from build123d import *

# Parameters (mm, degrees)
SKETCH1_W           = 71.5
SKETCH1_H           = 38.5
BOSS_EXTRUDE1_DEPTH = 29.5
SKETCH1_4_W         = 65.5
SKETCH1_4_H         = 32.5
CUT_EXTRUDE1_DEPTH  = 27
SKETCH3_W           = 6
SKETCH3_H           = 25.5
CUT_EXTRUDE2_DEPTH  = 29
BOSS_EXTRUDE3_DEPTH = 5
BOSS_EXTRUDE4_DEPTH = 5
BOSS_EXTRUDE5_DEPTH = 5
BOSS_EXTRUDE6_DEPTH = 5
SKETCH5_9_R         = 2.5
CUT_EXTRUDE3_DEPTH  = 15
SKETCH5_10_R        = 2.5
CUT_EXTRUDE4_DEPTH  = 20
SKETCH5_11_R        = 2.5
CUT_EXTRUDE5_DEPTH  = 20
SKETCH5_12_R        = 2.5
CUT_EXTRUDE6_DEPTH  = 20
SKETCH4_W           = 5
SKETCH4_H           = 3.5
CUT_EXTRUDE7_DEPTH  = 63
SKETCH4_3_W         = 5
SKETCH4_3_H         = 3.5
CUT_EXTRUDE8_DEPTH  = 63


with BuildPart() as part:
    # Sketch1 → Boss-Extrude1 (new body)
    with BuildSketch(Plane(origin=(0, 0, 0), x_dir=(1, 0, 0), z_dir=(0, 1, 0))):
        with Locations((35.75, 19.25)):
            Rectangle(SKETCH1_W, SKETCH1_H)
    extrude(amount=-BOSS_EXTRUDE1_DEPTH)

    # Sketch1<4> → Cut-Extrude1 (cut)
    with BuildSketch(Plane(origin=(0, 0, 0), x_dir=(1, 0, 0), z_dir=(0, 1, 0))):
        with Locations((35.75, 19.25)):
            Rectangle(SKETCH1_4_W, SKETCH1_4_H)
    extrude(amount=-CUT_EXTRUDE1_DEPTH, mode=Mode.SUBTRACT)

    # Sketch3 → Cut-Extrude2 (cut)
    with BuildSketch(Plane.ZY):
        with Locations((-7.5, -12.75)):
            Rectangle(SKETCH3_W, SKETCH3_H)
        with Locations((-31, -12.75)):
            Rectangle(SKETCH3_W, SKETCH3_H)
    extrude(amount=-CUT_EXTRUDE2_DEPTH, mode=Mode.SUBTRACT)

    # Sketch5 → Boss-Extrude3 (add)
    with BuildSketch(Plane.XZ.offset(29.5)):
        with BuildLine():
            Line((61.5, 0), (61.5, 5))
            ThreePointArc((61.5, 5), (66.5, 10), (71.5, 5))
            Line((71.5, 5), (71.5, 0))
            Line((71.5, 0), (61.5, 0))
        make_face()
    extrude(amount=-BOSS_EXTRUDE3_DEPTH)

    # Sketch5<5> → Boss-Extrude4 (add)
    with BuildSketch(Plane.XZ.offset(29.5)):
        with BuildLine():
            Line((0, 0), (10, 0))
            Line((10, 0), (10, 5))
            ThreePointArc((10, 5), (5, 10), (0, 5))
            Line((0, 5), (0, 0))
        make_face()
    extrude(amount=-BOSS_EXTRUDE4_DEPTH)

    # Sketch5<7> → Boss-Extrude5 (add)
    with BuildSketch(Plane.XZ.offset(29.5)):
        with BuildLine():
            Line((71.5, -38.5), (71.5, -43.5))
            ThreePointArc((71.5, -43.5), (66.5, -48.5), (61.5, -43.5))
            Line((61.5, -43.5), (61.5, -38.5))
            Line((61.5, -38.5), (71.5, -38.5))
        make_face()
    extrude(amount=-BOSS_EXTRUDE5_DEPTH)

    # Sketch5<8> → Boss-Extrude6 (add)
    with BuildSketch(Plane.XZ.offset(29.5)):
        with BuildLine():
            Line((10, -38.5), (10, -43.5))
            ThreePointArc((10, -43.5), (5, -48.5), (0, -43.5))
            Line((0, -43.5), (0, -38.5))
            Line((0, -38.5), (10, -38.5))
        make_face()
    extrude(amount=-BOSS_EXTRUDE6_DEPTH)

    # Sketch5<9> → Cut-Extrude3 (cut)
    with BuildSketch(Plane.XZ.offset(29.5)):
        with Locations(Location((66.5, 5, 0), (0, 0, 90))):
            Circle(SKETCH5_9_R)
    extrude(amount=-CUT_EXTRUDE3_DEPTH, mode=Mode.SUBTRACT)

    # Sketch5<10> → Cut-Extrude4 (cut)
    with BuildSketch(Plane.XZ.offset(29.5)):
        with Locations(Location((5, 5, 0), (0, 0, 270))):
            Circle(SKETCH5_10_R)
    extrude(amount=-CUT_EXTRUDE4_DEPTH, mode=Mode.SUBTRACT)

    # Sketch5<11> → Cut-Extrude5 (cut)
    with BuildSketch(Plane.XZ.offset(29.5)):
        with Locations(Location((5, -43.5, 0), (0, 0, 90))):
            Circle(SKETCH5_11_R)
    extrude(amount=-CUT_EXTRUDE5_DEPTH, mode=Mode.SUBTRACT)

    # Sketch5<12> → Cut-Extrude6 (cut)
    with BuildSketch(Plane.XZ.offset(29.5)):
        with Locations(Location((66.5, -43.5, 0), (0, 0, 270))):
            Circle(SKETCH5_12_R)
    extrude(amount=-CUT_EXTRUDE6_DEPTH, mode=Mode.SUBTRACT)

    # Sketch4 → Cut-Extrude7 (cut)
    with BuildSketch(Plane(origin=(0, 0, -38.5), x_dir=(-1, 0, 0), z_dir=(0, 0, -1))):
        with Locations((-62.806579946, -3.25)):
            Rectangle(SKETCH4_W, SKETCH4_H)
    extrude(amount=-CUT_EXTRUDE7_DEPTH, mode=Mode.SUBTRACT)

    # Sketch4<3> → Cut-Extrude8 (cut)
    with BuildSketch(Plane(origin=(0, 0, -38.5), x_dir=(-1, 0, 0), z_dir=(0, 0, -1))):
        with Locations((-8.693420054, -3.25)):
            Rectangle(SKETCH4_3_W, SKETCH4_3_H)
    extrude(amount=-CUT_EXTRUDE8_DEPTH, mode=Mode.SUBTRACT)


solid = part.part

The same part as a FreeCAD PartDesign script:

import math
import FreeCAD as App
import Part
import Sketcher

V = App.Vector

doc = App.newDocument("Part")
body = doc.addObject("PartDesign::Body", "Body")

# Sketch on XZ plane
sketch1 = body.newObject("Sketcher::SketchObject", "Sketch")
sketch1.AttachmentSupport = (doc.getObject("XZ_Plane"), [""])
sketch1.MapMode = "FlatFace"
sketch1.addGeometry(Part.LineSegment(V(0, -38, 0), V(0, 0, 0)), False)
sketch1.addGeometry(Part.LineSegment(V(0, 0, 0), V(72, 0, 0)), False)
sketch1.addGeometry(Part.LineSegment(V(72, 0, 0), V(72, -38, 0)), False)
sketch1.addGeometry(Part.LineSegment(V(72, -38, 0), V(0, -38, 0)), False)
sketch1.addConstraint(Sketcher.Constraint("Coincident", 0, 2, 1, 1))
sketch1.addConstraint(Sketcher.Constraint("Coincident", 1, 2, 2, 1))
sketch1.addConstraint(Sketcher.Constraint("Coincident", 2, 2, 3, 1))
sketch1.addConstraint(Sketcher.Constraint("Coincident", 3, 2, 0, 1))
sketch1.addConstraint(Sketcher.Constraint("Vertical", 0))
sketch1.addConstraint(Sketcher.Constraint("Horizontal", 1))
sketch1.addConstraint(Sketcher.Constraint("Vertical", 2))
sketch1.addConstraint(Sketcher.Constraint("Horizontal", 3))
sketch1.addConstraint(Sketcher.Constraint("Coincident", 0, 2, -1, 1))
sketch1.addConstraint(Sketcher.Constraint("DistanceX", 1, 1, 1, 2, 71.5))
sketch1.addConstraint(Sketcher.Constraint("DistanceY", 0, 1, 0, 2, 38.5))
pad1 = body.newObject("PartDesign::Pad", "Pad")
pad1.Profile = sketch1
pad1.Length = 29.5

# Sketch on XZ plane
sketch2 = body.newObject("Sketcher::SketchObject", "Sketch001")
sketch2.AttachmentSupport = (doc.getObject("XZ_Plane"), [""])
sketch2.MapMode = "FlatFace"
sketch2.addGeometry(Part.LineSegment(V(3, -36, 0), V(3, -3, 0)), False)
sketch2.addGeometry(Part.LineSegment(V(3, -3, 0), V(68, -3, 0)), False)
sketch2.addGeometry(Part.LineSegment(V(68, -3, 0), V(68, -36, 0)), False)
sketch2.addGeometry(Part.LineSegment(V(68, -36, 0), V(3, -36, 0)), False)
sketch2.addConstraint(Sketcher.Constraint("Coincident", 0, 2, 1, 1))
sketch2.addConstraint(Sketcher.Constraint("Coincident", 1, 2, 2, 1))
sketch2.addConstraint(Sketcher.Constraint("Coincident", 2, 2, 3, 1))
sketch2.addConstraint(Sketcher.Constraint("Coincident", 3, 2, 0, 1))
sketch2.addConstraint(Sketcher.Constraint("Vertical", 0))
sketch2.addConstraint(Sketcher.Constraint("Horizontal", 1))
sketch2.addConstraint(Sketcher.Constraint("Vertical", 2))
sketch2.addConstraint(Sketcher.Constraint("Horizontal", 3))
sketch2.addConstraint(Sketcher.Constraint("DistanceX", 1, 1, 1, 2, 65.5))
sketch2.addConstraint(Sketcher.Constraint("DistanceY", 0, 1, 0, 2, 32.5))
sketch2.addConstraint(Sketcher.Constraint("DistanceX", -1, 1, 0, 2, 3.0))
sketch2.addConstraint(Sketcher.Constraint("DistanceY", 0, 2, -1, 1, 3.0))
pocket1 = body.newObject("PartDesign::Pocket", "Pocket")
pocket1.Profile = sketch2
pocket1.Length = 27
pocket1.Reversed = True

# Sketch on YZ plane
sketch3 = body.newObject("Sketcher::SketchObject", "Sketch002")
sketch3.AttachmentSupport = (doc.getObject("YZ_Plane"), [""])
sketch3.MapMode = "FlatFace"
sketch3.addGeometry(Part.LineSegment(V(0, -10, 0), V(-26, -10, 0)), False)
sketch3.addGeometry(Part.LineSegment(V(-26, -10, 0), V(-26, -4, 0)), False)
sketch3.addGeometry(Part.LineSegment(V(-26, -4, 0), V(0, -4, 0)), False)
sketch3.addGeometry(Part.LineSegment(V(0, -4, 0), V(0, -10, 0)), False)
sketch3.addGeometry(Part.LineSegment(V(0, -34, 0), V(-26, -34, 0)), False)
sketch3.addGeometry(Part.LineSegment(V(-26, -34, 0), V(-26, -28, 0)), False)
sketch3.addGeometry(Part.LineSegment(V(-26, -28, 0), V(0, -28, 0)), False)
sketch3.addGeometry(Part.LineSegment(V(0, -28, 0), V(0, -34, 0)), False)
sketch3.addConstraint(Sketcher.Constraint("Coincident", 0, 2, 1, 1))
sketch3.addConstraint(Sketcher.Constraint("Coincident", 1, 2, 2, 1))
sketch3.addConstraint(Sketcher.Constraint("Coincident", 2, 2, 3, 1))
sketch3.addConstraint(Sketcher.Constraint("Coincident", 3, 2, 0, 1))
sketch3.addConstraint(Sketcher.Constraint("Coincident", 4, 2, 5, 1))
sketch3.addConstraint(Sketcher.Constraint("Coincident", 5, 2, 6, 1))
sketch3.addConstraint(Sketcher.Constraint("Coincident", 6, 2, 7, 1))
sketch3.addConstraint(Sketcher.Constraint("Coincident", 7, 2, 4, 1))
sketch3.addConstraint(Sketcher.Constraint("Horizontal", 0))
sketch3.addConstraint(Sketcher.Constraint("Vertical", 1))
sketch3.addConstraint(Sketcher.Constraint("Horizontal", 2))
sketch3.addConstraint(Sketcher.Constraint("Vertical", 3))
sketch3.addConstraint(Sketcher.Constraint("Horizontal", 4))
sketch3.addConstraint(Sketcher.Constraint("Vertical", 5))
sketch3.addConstraint(Sketcher.Constraint("Horizontal", 6))
sketch3.addConstraint(Sketcher.Constraint("Vertical", 7))
sketch3.addConstraint(Sketcher.Constraint("PointOnObject", 2, 2, -2))
sketch3.addConstraint(Sketcher.Constraint("PointOnObject", 6, 2, -2))
sketch3.addConstraint(Sketcher.Constraint("Vertical", 1, 2, 4, 2))
sketch3.addConstraint(Sketcher.Constraint("Equal", 3, 5))
sketch3.addConstraint(Sketcher.Constraint("DistanceY", 1, 1, 1, 2, 6.0))
sketch3.addConstraint(Sketcher.Constraint("DistanceX", 0, 2, 0, 1, 25.5))
sketch3.addConstraint(Sketcher.Constraint("DistanceY", 4, 2, -1, 1, 34.0))
sketch3.addConstraint(Sketcher.Constraint("DistanceY", 0, 2, -1, 1, 10.5))
pocket2 = body.newObject("PartDesign::Pocket", "Pocket001")
pocket2.Profile = sketch3
pocket2.Length = 29
pocket2.Reversed = True

# Sketch on XZ plane
sketch4 = body.newObject("Sketcher::SketchObject", "Sketch003")
sketch4.AttachmentSupport = (doc.getObject("XZ_Plane"), [""])
sketch4.MapMode = "FlatFace"
sketch4.AttachmentOffset = App.Placement(V(0, 0, 29.5), App.Rotation())
sketch4.addGeometry(Part.LineSegment(V(62, 5, 0), V(62, 0, 0)), False)
sketch4.addGeometry(Part.LineSegment(V(62, 0, 0), V(72, 0, 0)), False)
sketch4.addGeometry(Part.LineSegment(V(72, 0, 0), V(72, 5, 0)), False)
sketch4.addGeometry(Part.ArcOfCircle(Part.Circle(V(66, 5, 0), V(0, 0, 1), 5), math.radians(0), math.radians(180)), False)
sketch4.addConstraint(Sketcher.Constraint("Coincident", 0, 2, 1, 1))
sketch4.addConstraint(Sketcher.Constraint("Coincident", 1, 2, 2, 1))
sketch4.addConstraint(Sketcher.Constraint("Tangent", 2, 2, 3, 1))
sketch4.addConstraint(Sketcher.Constraint("Tangent", 3, 2, 0, 1))
sketch4.addConstraint(Sketcher.Constraint("Vertical", 0))
sketch4.addConstraint(Sketcher.Constraint("Horizontal", 1))
sketch4.addConstraint(Sketcher.Constraint("Vertical", 2))
sketch4.addConstraint(Sketcher.Constraint("PointOnObject", 0, 2, -1))
sketch4.addConstraint(Sketcher.Constraint("Radius", 3, 5.0))
sketch4.addConstraint(Sketcher.Constraint("DistanceY", 0, 2, 0, 1, 5.0))
sketch4.addConstraint(Sketcher.Constraint("DistanceX", -1, 1, 3, 3, 66.5))
pad2 = body.newObject("PartDesign::Pad", "Pad001")
pad2.Profile = sketch4
pad2.Length = 5
pad2.Reversed = True

# Sketch on XZ plane
sketch5 = body.newObject("Sketcher::SketchObject", "Sketch004")
sketch5.AttachmentSupport = (doc.getObject("XZ_Plane"), [""])
sketch5.MapMode = "FlatFace"
sketch5.AttachmentOffset = App.Placement(V(0, 0, 29.5), App.Rotation())
sketch5.addGeometry(Part.LineSegment(V(0, 0, 0), V(10, 0, 0)), False)
sketch5.addGeometry(Part.LineSegment(V(10, 0, 0), V(10, 5, 0)), False)
sketch5.addGeometry(Part.ArcOfCircle(Part.Circle(V(5, 5, 0), V(0, 0, 1), 5), math.radians(0), math.radians(180)), False)
sketch5.addGeometry(Part.LineSegment(V(0, 5, 0), V(0, 0, 0)), False)
sketch5.addConstraint(Sketcher.Constraint("Coincident", 0, 2, 1, 1))
sketch5.addConstraint(Sketcher.Constraint("Tangent", 1, 2, 2, 1))
sketch5.addConstraint(Sketcher.Constraint("Tangent", 2, 2, 3, 1))
sketch5.addConstraint(Sketcher.Constraint("Coincident", 3, 2, 0, 1))
sketch5.addConstraint(Sketcher.Constraint("Horizontal", 0))
sketch5.addConstraint(Sketcher.Constraint("Vertical", 1))
sketch5.addConstraint(Sketcher.Constraint("Vertical", 3))
sketch5.addConstraint(Sketcher.Constraint("Coincident", 3, 2, -1, 1))
sketch5.addConstraint(Sketcher.Constraint("Radius", 2, 5.0))
sketch5.addConstraint(Sketcher.Constraint("DistanceY", 1, 1, 1, 2, 5.0))
pad3 = body.newObject("PartDesign::Pad", "Pad002")
pad3.Profile = sketch5
pad3.Length = 5
pad3.Reversed = True

# Sketch on XZ plane
sketch6 = body.newObject("Sketcher::SketchObject", "Sketch005")
sketch6.AttachmentSupport = (doc.getObject("XZ_Plane"), [""])
sketch6.MapMode = "FlatFace"
sketch6.AttachmentOffset = App.Placement(V(0, 0, 29.5), App.Rotation())
sketch6.addGeometry(Part.LineSegment(V(72, -44, 0), V(72, -38, 0)), False)
sketch6.addGeometry(Part.LineSegment(V(72, -38, 0), V(62, -38, 0)), False)
sketch6.addGeometry(Part.LineSegment(V(62, -38, 0), V(62, -44, 0)), False)
sketch6.addGeometry(Part.ArcOfCircle(Part.Circle(V(66, -44, 0), V(0, 0, 1), 5), math.radians(180), math.radians(360)), False)
sketch6.addConstraint(Sketcher.Constraint("Coincident", 0, 2, 1, 1))
sketch6.addConstraint(Sketcher.Constraint("Coincident", 1, 2, 2, 1))
sketch6.addConstraint(Sketcher.Constraint("Tangent", 2, 2, 3, 1))
sketch6.addConstraint(Sketcher.Constraint("Tangent", 3, 2, 0, 1))
sketch6.addConstraint(Sketcher.Constraint("Vertical", 0))
sketch6.addConstraint(Sketcher.Constraint("Horizontal", 1))
sketch6.addConstraint(Sketcher.Constraint("Vertical", 2))
sketch6.addConstraint(Sketcher.Constraint("Radius", 3, 5.0))
sketch6.addConstraint(Sketcher.Constraint("DistanceY", 0, 1, 0, 2, 5.0))
sketch6.addConstraint(Sketcher.Constraint("DistanceX", -1, 1, 3, 3, 66.5))
sketch6.addConstraint(Sketcher.Constraint("DistanceY", 3, 3, -1, 1, 43.5))
pad4 = body.newObject("PartDesign::Pad", "Pad003")
pad4.Profile = sketch6
pad4.Length = 5
pad4.Reversed = True

# Sketch on XZ plane
sketch7 = body.newObject("Sketcher::SketchObject", "Sketch006")
sketch7.AttachmentSupport = (doc.getObject("XZ_Plane"), [""])
sketch7.MapMode = "FlatFace"
sketch7.AttachmentOffset = App.Placement(V(0, 0, 29.5), App.Rotation())
sketch7.addGeometry(Part.LineSegment(V(10, -44, 0), V(10, -38, 0)), False)
sketch7.addGeometry(Part.LineSegment(V(10, -38, 0), V(0, -38, 0)), False)
sketch7.addGeometry(Part.LineSegment(V(0, -38, 0), V(0, -44, 0)), False)
sketch7.addGeometry(Part.ArcOfCircle(Part.Circle(V(5, -44, 0), V(0, 0, 1), 5), math.radians(180), math.radians(360)), False)
sketch7.addConstraint(Sketcher.Constraint("Coincident", 0, 2, 1, 1))
sketch7.addConstraint(Sketcher.Constraint("Coincident", 1, 2, 2, 1))
sketch7.addConstraint(Sketcher.Constraint("Tangent", 2, 2, 3, 1))
sketch7.addConstraint(Sketcher.Constraint("Tangent", 3, 2, 0, 1))
sketch7.addConstraint(Sketcher.Constraint("Vertical", 0))
sketch7.addConstraint(Sketcher.Constraint("Horizontal", 1))
sketch7.addConstraint(Sketcher.Constraint("Vertical", 2))
sketch7.addConstraint(Sketcher.Constraint("PointOnObject", 1, 2, -2))
sketch7.addConstraint(Sketcher.Constraint("Radius", 3, 5.0))
sketch7.addConstraint(Sketcher.Constraint("DistanceY", 0, 1, 0, 2, 5.0))
sketch7.addConstraint(Sketcher.Constraint("DistanceY", 3, 3, -1, 1, 43.5))
pad5 = body.newObject("PartDesign::Pad", "Pad004")
pad5.Profile = sketch7
pad5.Length = 5
pad5.Reversed = True

# Sketch on XZ plane
sketch8 = body.newObject("Sketcher::SketchObject", "Sketch007")
sketch8.AttachmentSupport = (doc.getObject("XZ_Plane"), [""])
sketch8.MapMode = "FlatFace"
sketch8.AttachmentOffset = App.Placement(V(0, 0, 29.5), App.Rotation())
sketch8.addGeometry(Part.Circle(V(66.5, 5, 0), V(0, 0, 1), 2.5), False)
sketch8.addConstraint(Sketcher.Constraint("Diameter", 0, 5.0))
sketch8.addConstraint(Sketcher.Constraint("DistanceY", -1, 1, 0, 3, 5.0))
sketch8.addConstraint(Sketcher.Constraint("DistanceX", -1, 1, 0, 3, 66.5))
pocket3 = body.newObject("PartDesign::Pocket", "Pocket002")
pocket3.Profile = sketch8
pocket3.Length = 15

# Sketch on XZ plane
sketch9 = body.newObject("Sketcher::SketchObject", "Sketch008")
sketch9.AttachmentSupport = (doc.getObject("XZ_Plane"), [""])
sketch9.MapMode = "FlatFace"
sketch9.AttachmentOffset = App.Placement(V(0, 0, 29.5), App.Rotation())
sketch9.addGeometry(Part.Circle(V(5, 5, 0), V(0, 0, 1), 2.5), False)
sketch9.addConstraint(Sketcher.Constraint("Diameter", 0, 5.0))
sketch9.addConstraint(Sketcher.Constraint("DistanceX", -1, 1, 0, 3, 5.0))
sketch9.addConstraint(Sketcher.Constraint("DistanceY", -1, 1, 0, 3, 5.0))
pocket4 = body.newObject("PartDesign::Pocket", "Pocket003")
pocket4.Profile = sketch9
pocket4.Length = 20

# Sketch on XZ plane
sketch10 = body.newObject("Sketcher::SketchObject", "Sketch009")
sketch10.AttachmentSupport = (doc.getObject("XZ_Plane"), [""])
sketch10.MapMode = "FlatFace"
sketch10.AttachmentOffset = App.Placement(V(0, 0, 29.5), App.Rotation())
sketch10.addGeometry(Part.Circle(V(5, -43.5, 0), V(0, 0, 1), 2.5), False)
sketch10.addConstraint(Sketcher.Constraint("Diameter", 0, 5.0))
sketch10.addConstraint(Sketcher.Constraint("DistanceX", -1, 1, 0, 3, 5.0))
sketch10.addConstraint(Sketcher.Constraint("DistanceY", 0, 3, -1, 1, 43.5))
pocket5 = body.newObject("PartDesign::Pocket", "Pocket004")
pocket5.Profile = sketch10
pocket5.Length = 20

# Sketch on XZ plane
sketch11 = body.newObject("Sketcher::SketchObject", "Sketch010")
sketch11.AttachmentSupport = (doc.getObject("XZ_Plane"), [""])
sketch11.MapMode = "FlatFace"
sketch11.AttachmentOffset = App.Placement(V(0, 0, 29.5), App.Rotation())
sketch11.addGeometry(Part.Circle(V(66.5, -43.5, 0), V(0, 0, 1), 2.5), False)
sketch11.addConstraint(Sketcher.Constraint("Diameter", 0, 5.0))
sketch11.addConstraint(Sketcher.Constraint("DistanceX", -1, 1, 0, 3, 66.5))
sketch11.addConstraint(Sketcher.Constraint("DistanceY", 0, 3, -1, 1, 43.5))
pocket6 = body.newObject("PartDesign::Pocket", "Pocket005")
pocket6.Profile = sketch11
pocket6.Length = 20

# Sketch on XY plane
sketch12 = body.newObject("Sketcher::SketchObject", "Sketch011")
sketch12.AttachmentSupport = (doc.getObject("XY_Plane"), [""])
sketch12.MapMode = "FlatFace"
sketch12.AttachmentOffset = App.Placement(V(0, 0, -38.5), App.Rotation())
sketch12.addGeometry(Part.LineSegment(V(65.3, -1.5, 0), V(65.3, -5, 0)), False)
sketch12.addGeometry(Part.LineSegment(V(65.3, -5, 0), V(60.3, -5, 0)), False)
sketch12.addGeometry(Part.LineSegment(V(60.3, -5, 0), V(60.3, -1.5, 0)), False)
sketch12.addGeometry(Part.LineSegment(V(60.3, -1.5, 0), V(65.3, -1.5, 0)), False)
sketch12.addConstraint(Sketcher.Constraint("Coincident", 0, 2, 1, 1))
sketch12.addConstraint(Sketcher.Constraint("Coincident", 1, 2, 2, 1))
sketch12.addConstraint(Sketcher.Constraint("Coincident", 2, 2, 3, 1))
sketch12.addConstraint(Sketcher.Constraint("Coincident", 3, 2, 0, 1))
sketch12.addConstraint(Sketcher.Constraint("Vertical", 0))
sketch12.addConstraint(Sketcher.Constraint("Horizontal", 1))
sketch12.addConstraint(Sketcher.Constraint("Vertical", 2))
sketch12.addConstraint(Sketcher.Constraint("Horizontal", 3))
sketch12.addConstraint(Sketcher.Constraint("DistanceX", 1, 2, 1, 1, 5.0))
sketch12.addConstraint(Sketcher.Constraint("DistanceY", 0, 2, 0, 1, 3.5))
sketch12.addConstraint(Sketcher.Constraint("DistanceY", 0, 2, -1, 1, 5.0))
sketch12.addConstraint(Sketcher.Constraint("DistanceX", -1, 1, 0, 2, 65.30658))
pocket7 = body.newObject("PartDesign::Pocket", "Pocket006")
pocket7.Profile = sketch12
pocket7.Length = 63
pocket7.Reversed = True

# Sketch on XY plane
sketch13 = body.newObject("Sketcher::SketchObject", "Sketch012")
sketch13.AttachmentSupport = (doc.getObject("XY_Plane"), [""])
sketch13.MapMode = "FlatFace"
sketch13.AttachmentOffset = App.Placement(V(0, 0, -38.5), App.Rotation())
sketch13.addGeometry(Part.LineSegment(V(11.2, -1.5, 0), V(11.2, -5, 0)), False)
sketch13.addGeometry(Part.LineSegment(V(11.2, -5, 0), V(6.2, -5, 0)), False)
sketch13.addGeometry(Part.LineSegment(V(6.2, -5, 0), V(6.2, -1.5, 0)), False)
sketch13.addGeometry(Part.LineSegment(V(6.2, -1.5, 0), V(11.2, -1.5, 0)), False)
sketch13.addConstraint(Sketcher.Constraint("Coincident", 0, 2, 1, 1))
sketch13.addConstraint(Sketcher.Constraint("Coincident", 1, 2, 2, 1))
sketch13.addConstraint(Sketcher.Constraint("Coincident", 2, 2, 3, 1))
sketch13.addConstraint(Sketcher.Constraint("Coincident", 3, 2, 0, 1))
sketch13.addConstraint(Sketcher.Constraint("Vertical", 0))
sketch13.addConstraint(Sketcher.Constraint("Horizontal", 1))
sketch13.addConstraint(Sketcher.Constraint("Vertical", 2))
sketch13.addConstraint(Sketcher.Constraint("Horizontal", 3))
sketch13.addConstraint(Sketcher.Constraint("DistanceX", 1, 2, 1, 1, 5.0))
sketch13.addConstraint(Sketcher.Constraint("DistanceY", 0, 2, 0, 1, 3.5))
sketch13.addConstraint(Sketcher.Constraint("DistanceY", 0, 2, -1, 1, 5.0))
sketch13.addConstraint(Sketcher.Constraint("DistanceX", -1, 1, 0, 2, 11.19342))
pocket8 = body.newObject("PartDesign::Pocket", "Pocket007")
pocket8.Profile = sketch13
pocket8.Length = 63
pocket8.Reversed = True

doc.recompute()
